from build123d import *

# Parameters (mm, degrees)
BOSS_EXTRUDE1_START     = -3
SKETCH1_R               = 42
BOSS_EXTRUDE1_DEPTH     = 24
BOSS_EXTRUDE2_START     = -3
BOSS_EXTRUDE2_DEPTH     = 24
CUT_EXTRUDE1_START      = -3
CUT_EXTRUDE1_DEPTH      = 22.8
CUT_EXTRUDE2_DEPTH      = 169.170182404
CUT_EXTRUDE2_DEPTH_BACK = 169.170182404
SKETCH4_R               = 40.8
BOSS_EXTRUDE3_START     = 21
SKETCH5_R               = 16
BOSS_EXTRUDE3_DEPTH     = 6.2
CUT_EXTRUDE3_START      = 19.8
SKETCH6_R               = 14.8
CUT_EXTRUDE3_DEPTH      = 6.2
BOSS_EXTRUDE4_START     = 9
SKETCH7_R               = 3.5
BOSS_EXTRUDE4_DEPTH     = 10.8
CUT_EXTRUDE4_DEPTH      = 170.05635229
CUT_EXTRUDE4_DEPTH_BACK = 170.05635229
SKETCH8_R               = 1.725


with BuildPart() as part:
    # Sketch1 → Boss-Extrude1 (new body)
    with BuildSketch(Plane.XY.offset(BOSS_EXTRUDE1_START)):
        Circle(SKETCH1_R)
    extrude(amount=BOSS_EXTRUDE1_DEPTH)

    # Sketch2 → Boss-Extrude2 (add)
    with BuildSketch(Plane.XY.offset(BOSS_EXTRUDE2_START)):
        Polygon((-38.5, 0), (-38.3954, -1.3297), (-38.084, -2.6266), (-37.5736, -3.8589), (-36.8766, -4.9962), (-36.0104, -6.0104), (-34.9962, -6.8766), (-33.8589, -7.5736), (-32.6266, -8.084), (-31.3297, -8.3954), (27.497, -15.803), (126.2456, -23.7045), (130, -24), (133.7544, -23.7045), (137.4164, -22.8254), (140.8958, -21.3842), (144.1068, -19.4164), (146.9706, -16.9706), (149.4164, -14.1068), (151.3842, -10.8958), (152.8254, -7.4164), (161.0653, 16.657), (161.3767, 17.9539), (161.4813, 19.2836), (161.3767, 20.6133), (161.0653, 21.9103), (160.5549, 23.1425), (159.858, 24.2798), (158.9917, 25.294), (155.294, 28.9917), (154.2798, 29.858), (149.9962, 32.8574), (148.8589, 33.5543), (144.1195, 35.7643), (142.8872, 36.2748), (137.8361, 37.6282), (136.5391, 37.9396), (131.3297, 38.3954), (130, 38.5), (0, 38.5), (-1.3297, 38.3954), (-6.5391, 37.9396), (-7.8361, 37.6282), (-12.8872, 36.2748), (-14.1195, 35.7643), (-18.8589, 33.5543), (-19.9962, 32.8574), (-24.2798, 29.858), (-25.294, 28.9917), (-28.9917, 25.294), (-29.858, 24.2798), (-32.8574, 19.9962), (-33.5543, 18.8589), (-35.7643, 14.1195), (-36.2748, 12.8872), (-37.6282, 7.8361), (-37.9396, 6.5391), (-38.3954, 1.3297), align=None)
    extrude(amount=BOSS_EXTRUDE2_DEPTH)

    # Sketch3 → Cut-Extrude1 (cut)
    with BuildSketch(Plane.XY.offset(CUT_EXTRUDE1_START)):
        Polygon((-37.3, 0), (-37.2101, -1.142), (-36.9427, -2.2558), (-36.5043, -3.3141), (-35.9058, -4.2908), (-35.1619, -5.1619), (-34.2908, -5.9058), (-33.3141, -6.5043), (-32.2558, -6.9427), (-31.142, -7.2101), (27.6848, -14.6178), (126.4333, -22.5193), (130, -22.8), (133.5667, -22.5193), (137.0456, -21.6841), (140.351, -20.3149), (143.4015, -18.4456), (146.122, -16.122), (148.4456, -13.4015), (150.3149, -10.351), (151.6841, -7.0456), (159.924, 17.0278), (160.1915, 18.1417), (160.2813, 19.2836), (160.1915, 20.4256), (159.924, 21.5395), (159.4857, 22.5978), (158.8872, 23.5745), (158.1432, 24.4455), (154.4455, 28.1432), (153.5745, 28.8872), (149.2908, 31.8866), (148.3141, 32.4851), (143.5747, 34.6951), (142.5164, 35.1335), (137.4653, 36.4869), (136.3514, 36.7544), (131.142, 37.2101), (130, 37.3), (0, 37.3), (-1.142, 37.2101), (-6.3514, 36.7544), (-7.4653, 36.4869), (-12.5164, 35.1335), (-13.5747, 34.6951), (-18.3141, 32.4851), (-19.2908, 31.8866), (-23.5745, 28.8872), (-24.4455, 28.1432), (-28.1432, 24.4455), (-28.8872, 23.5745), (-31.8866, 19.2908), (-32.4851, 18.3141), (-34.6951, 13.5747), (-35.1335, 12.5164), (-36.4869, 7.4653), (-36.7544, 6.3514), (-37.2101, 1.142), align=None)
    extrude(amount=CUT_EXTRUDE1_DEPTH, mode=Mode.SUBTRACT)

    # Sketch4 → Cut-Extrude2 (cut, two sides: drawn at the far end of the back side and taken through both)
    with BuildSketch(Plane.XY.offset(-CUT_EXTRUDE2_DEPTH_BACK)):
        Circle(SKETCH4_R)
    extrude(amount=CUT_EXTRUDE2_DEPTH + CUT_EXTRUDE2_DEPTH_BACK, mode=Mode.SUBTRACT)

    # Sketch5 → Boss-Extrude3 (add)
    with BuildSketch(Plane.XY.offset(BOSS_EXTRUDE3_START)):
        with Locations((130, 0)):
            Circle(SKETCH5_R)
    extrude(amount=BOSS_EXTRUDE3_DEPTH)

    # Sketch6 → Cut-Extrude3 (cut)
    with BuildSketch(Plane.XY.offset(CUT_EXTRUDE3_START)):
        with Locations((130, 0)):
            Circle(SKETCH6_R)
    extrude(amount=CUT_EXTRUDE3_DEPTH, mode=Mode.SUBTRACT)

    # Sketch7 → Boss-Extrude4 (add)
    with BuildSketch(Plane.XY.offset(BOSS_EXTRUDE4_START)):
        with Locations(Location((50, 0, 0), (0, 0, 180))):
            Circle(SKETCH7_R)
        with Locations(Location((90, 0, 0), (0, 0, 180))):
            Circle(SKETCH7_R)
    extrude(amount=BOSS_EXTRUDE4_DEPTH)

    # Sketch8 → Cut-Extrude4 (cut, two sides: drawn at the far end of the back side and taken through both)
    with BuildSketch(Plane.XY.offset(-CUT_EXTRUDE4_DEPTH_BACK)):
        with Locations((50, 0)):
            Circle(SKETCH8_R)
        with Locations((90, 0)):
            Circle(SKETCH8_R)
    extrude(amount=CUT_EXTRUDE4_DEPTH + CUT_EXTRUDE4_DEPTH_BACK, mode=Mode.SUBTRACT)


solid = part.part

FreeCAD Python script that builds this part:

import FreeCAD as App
import Part
import Sketcher
Q = App.Units.Quantity


def add_polygon(sketch, points):
    """Adds a closed chain of lines whose ends are joined by coincident constraints."""
    first, n = sketch.GeometryCount, len(points)
    for a, b in zip(points, points[1:] + points[:1]):
        sketch.addGeometry(Part.LineSegment(App.Vector(*a, 0), App.Vector(*b, 0)), False)
    for i in range(n):
        sketch.addConstraint(Sketcher.Constraint("Coincident", first + i, 2, first + (i + 1) % n, 1))

doc = App.newDocument("Part")
body = doc.addObject("PartDesign::Body", "Body")

sketch1 = body.newObject("Sketcher::SketchObject", "Sketch")
sketch1.AttachmentSupport = (doc.getObject("XY_Plane"), [""])
sketch1.MapMode = "FlatFace"
sketch1.AttachmentOffset = App.Placement(App.Vector(0, 0, -3), App.Rotation())
sketch1.addGeometry(Part.Circle(App.Vector(0, 0, 0), App.Vector(0, 0, 1), 42), False)
sketch1.addConstraint([
    Sketcher.Constraint("Coincident", 0, 3, -1, 1),
    Sketcher.Constraint("Diameter", 0, 84.0),
])
pad1 = body.newObject("PartDesign::Pad", "Pad")
pad1.Profile = sketch1
pad1.Length = 24

sketch2 = body.newObject("Sketcher::SketchObject", "Sketch001")
sketch2.AttachmentSupport = (doc.getObject("XY_Plane"), [""])
sketch2.MapMode = "FlatFace"
sketch2.AttachmentOffset = App.Placement(App.Vector(0, 0, -3), App.Rotation())
add_polygon(sketch2, [(-38.5, 0), (-38.3954, -1.3297), (-38.084, -2.6266), (-37.5736, -3.8589), (-36.8766, -4.9962), (-36.0104, -6.0104), (-34.9962, -6.8766), (-33.8589, -7.5736), (-32.6266, -8.084), (-31.3297, -8.3954), (27.497, -15.803), (126.2456, -23.7045), (130, -24), (133.7544, -23.7045), (137.4164, -22.8254), (140.8958, -21.3842), (144.1068, -19.4164), (146.9706, -16.9706), (149.4164, -14.1068), (151.3842, -10.8958), (152.8254, -7.4164), (161.0653, 16.657), (161.3767, 17.9539), (161.4813, 19.2836), (161.3767, 20.6133), (161.0653, 21.9103), (160.5549, 23.1425), (159.858, 24.2798), (158.9917, 25.294), (155.294, 28.9917), (154.2798, 29.858), (149.9962, 32.8574), (148.8589, 33.5543), (144.1195, 35.7643), (142.8872, 36.2748), (137.8361, 37.6282), (136.5391, 37.9396), (131.3297, 38.3954), (130, 38.5), (0, 38.5), (-1.3297, 38.3954), (-6.5391, 37.9396), (-7.8361, 37.6282), (-12.8872, 36.2748), (-14.1195, 35.7643), (-18.8589, 33.5543), (-19.9962, 32.8574), (-24.2798, 29.858), (-25.294, 28.9917), (-28.9917, 25.294), (-29.858, 24.2798), (-32.8574, 19.9962), (-33.5543, 18.8589), (-35.7643, 14.1195), (-36.2748, 12.8872), (-37.6282, 7.8361), (-37.9396, 6.5391), (-38.3954, 1.3297)])
sketch2.addConstraint([
    Sketcher.Constraint("Horizontal", 38),
    Sketcher.Constraint("Symmetric", 0, 2, 56, 2, -1),
    Sketcher.Constraint("PointOnObject", 38, 2, -2),
    Sketcher.Constraint("PointOnObject", 57, 2, -1),
    Sketcher.Constraint("Perpendicular", 8, 21),
    Sketcher.Constraint("Parallel", 0, 23),
    Sketcher.Constraint("Perpendicular", 22, 37),
    Sketcher.Constraint("Perpendicular", 23, 39),
    Sketcher.Constraint("Perpendicular", 24, 41),
    Sketcher.Constraint("Perpendicular", 26, 45),
    Sketcher.Constraint("Perpendicular", 27, 47),
    Sketcher.Constraint("Perpendicular", 28, 48),
    Sketcher.Constraint("Perpendicular", 29, 49),
    Sketcher.Constraint("Perpendicular", 30, 50),
    Sketcher.Constraint("Perpendicular", 31, 51),
    Sketcher.Constraint("Perpendicular", 32, 52),
    Sketcher.Constraint("Perpendicular", 33, 53),
    Sketcher.Constraint("Perpendicular", 34, 54),
    Sketcher.Constraint("Perpendicular", 35, 55),
    Sketcher.Constraint("Perpendicular", 36, 56),
    Sketcher.Constraint("Perpendicular", 37, 57),
    Sketcher.Constraint("Horizontal", 10, 2, 12, 2),
    Sketcher.Constraint("Horizontal", 36, 2, 39, 2),
    Sketcher.Constraint("Horizontal", 35, 2, 40, 2),
    Sketcher.Constraint("Horizontal", 34, 2, 41, 2),
    Sketcher.Constraint("Horizontal", 33, 2, 42, 2),
    Sketcher.Constraint("Horizontal", 32, 2, 43, 2),
    Sketcher.Constraint("Horizontal", 31, 2, 44, 2),
    Sketcher.Constraint("Horizontal", 30, 2, 45, 2),
    Sketcher.Constraint("Horizontal", 29, 2, 46, 2),
    Sketcher.Constraint("Horizontal", 28, 2, 47, 2),
    Sketcher.Constraint("Horizontal", 27, 2, 48, 2),
    Sketcher.Constraint("Horizontal", 26, 2, 49, 2),
    Sketcher.Constraint("Vertical", 21, 2, 23, 2),
    Sketcher.Constraint("Vertical", 20, 2, 24, 2),
    Sketcher.Constraint("Vertical", 11, 2, 37, 2),
    Sketcher.Constraint("Equal", 4, 5),
    Sketcher.Constraint("Equal", 3, 6),
    Sketcher.Constraint("Equal", 2, 7),
    Sketcher.Constraint("Equal", 1, 8),
    Sketcher.Constraint("Equal", 11, 12),
    Sketcher.Constraint("Equal", 14, 16),
    Sketcher.Constraint("Equal", 16, 17),
    Sketcher.Constraint("Equal", 15, 18),
    Sketcher.Constraint("Equal", 17, 19),
    Sketcher.Constraint("Equal", 8, 21),
    Sketcher.Constraint("Equal", 0, 22),
    Sketcher.Constraint("Equal", 27, 29),
    Sketcher.Constraint("Equal", 26, 31),
    Sketcher.Constraint("Equal", 24, 35),
    Sketcher.Constraint("Equal", 23, 37),
    Sketcher.Constraint("Equal", 36, 40),
    Sketcher.Constraint("Equal", 35, 41),
    Sketcher.Constraint("Equal", 34, 42),
    Sketcher.Constraint("Equal", 33, 43),
    Sketcher.Constraint("Equal", 32, 44),
    Sketcher.Constraint("Equal", 31, 45),
    Sketcher.Constraint("Equal", 30, 46),
    Sketcher.Constraint("Equal", 29, 47),
    Sketcher.Constraint("Equal", 28, 48),
    Sketcher.Constraint("Equal", 46, 50),
    Sketcher.Constraint("Equal", 45, 51),
    Sketcher.Constraint("Equal", 44, 52),
    Sketcher.Constraint("Equal", 43, 53),
    Sketcher.Constraint("Equal", 42, 54),
    Sketcher.Constraint("Equal", 41, 55),
    Sketcher.Constraint("Equal", 40, 56),
    Sketcher.Constraint("DistanceX", 38, 2, 38, 1, 130.0),
    Sketcher.Constraint("DistanceY", 11, 2, -1, 1, 24.0),
    Sketcher.Constraint("DistanceX", 13, 2, 17, 2, 12.0),
    Sketcher.Constraint("DistanceY", 15, 2, 19, 2, 12.0),
    Sketcher.Constraint("DistanceX", 8, 2, 39, 2, 30.0),
    Sketcher.Constraint("DistanceY", -1, 1, 37, 2, 38.5),
    Sketcher.Constraint("DistanceY", 19, 2, 22, 2, 26.7),
    Sketcher.Constraint("DistanceY", 5, 2, 1, 2, 4.25),
    Sketcher.Constraint("DistanceX", 3, 2, 7, 2, 4.25),
    Sketcher.Constraint("DistanceY", 13, 2, 8, 2, 14.43),
    Sketcher.Constraint("DistanceY", 31, 2, 32, 2, 2.21),
    Sketcher.Constraint("Distance", 15, 3.766),
    Sketcher.Constraint("DistanceX", 1, 2, -1, 1, 38.084),
    Sketcher.Constraint("DistanceY", 7, 2, -1, 1, 8.084),
    Sketcher.Constraint("DistanceX", -1, 1, 9, 2, 27.497),
    Sketcher.Constraint("DistanceY", 9, 2, -1, 1, 15.803),
    Sketcher.Constraint("DistanceY", -1, 1, 20, 2, 16.657),
    Sketcher.Constraint("DistanceX", -1, 1, 26, 2, 159.858),
    Sketcher.Constraint("DistanceY", -1, 1, 27, 2, 25.294),
    Sketcher.Constraint("DistanceX", 2, 2, 3, 2, 0.697),
    Sketcher.Constraint("DistanceX", 0, 2, 4, 2, 2.385),
    Sketcher.Constraint("DistanceY", 6, 2, 5, 2, 0.697),
    Sketcher.Constraint("DistanceY", 8, 2, 4, 2, 2.385),
    Sketcher.Constraint("DistanceX", 7, 2, 12, 2, 166.381),
    Sketcher.Constraint("DistanceX", 12, 2, 13, 2, 3.662),
    Sketcher.Constraint("DistanceX", 14, 2, 15, 2, 3.211),
    Sketcher.Constraint("DistanceY", 13, 2, 15, 2, 3.409),
    Sketcher.Constraint("DistanceY", 17, 2, 18, 2, 3.211),
    Sketcher.Constraint("DistanceX", 17, 2, 19, 2, 3.409),
    Sketcher.Constraint("DistanceY", 23, 2, 24, 2, 1.297),
    Sketcher.Constraint("DistanceX", 27, 2, 23, 2, 2.385),
    Sketcher.Constraint("DistanceX", 33, 2, 30, 2, 7.109),
    Sketcher.Constraint("DistanceY", 2, 2, 54, 2, 11.695),
    Sketcher.Constraint("DistanceX", 0, 2, -1, 1, 38.3954),
    Sketcher.Constraint("DistanceY", 0, 2, -1, 1, 1.3297),
    Sketcher.Constraint("DistanceY", 2, 2, -1, 1, 3.8589),
    Sketcher.Constraint("DistanceY", 3, 2, -1, 1, 4.9962),
    Sketcher.Constraint("DistanceY", 10, 2, -1, 1, 23.7045),
    Sketcher.Constraint("DistanceX", -1, 1, 14, 2, 140.8958),
    Sketcher.Constraint("DistanceX", -1, 1, 20, 2, 161.0653),
    Sketcher.Constraint("DistanceX", -1, 1, 25, 2, 160.5549),
    Sketcher.Constraint("DistanceY", -1, 1, 25, 2, 23.1425),
    Sketcher.Constraint("DistanceY", -1, 1, 26, 2, 24.2798),
    Sketcher.Constraint("DistanceX", -1, 1, 30, 2, 149.9962),
    Sketcher.Constraint("DistanceY", -1, 1, 30, 2, 32.8574),
    Sketcher.Constraint("DistanceX", -1, 1, 32, 2, 144.1195),
    Sketcher.Constraint("DistanceY", -1, 1, 33, 2, 36.2748),
    Sketcher.Constraint("DistanceY", -1, 1, 34, 2, 37.6282),
])
pad2 = body.newObject("PartDesign::Pad", "Pad001")
pad2.Profile = sketch2
pad2.Length = 24

sketch3 = body.newObject("Sketcher::SketchObject", "Sketch002")
sketch3.AttachmentSupport = (doc.getObject("XY_Plane"), [""])
sketch3.MapMode = "FlatFace"
sketch3.AttachmentOffset = App.Placement(App.Vector(0, 0, -3), App.Rotation())
add_polygon(sketch3, [(-37.3, 0), (-37.2101, -1.142), (-36.9427, -2.2558), (-36.5043, -3.3141), (-35.9058, -4.2908), (-35.1619, -5.1619), (-34.2908, -5.9058), (-33.3141, -6.5043), (-32.2558, -6.9427), (-31.142, -7.2101), (27.6848, -14.6178), (126.4333, -22.5193), (130, -22.8), (133.5667, -22.5193), (137.0456, -21.6841), (140.351, -20.3149), (143.4015, -18.4456), (146.122, -16.122), (148.4456, -13.4015), (150.3149, -10.351), (151.6841, -7.0456), (159.924, 17.0278), (160.1915, 18.1417), (160.2813, 19.2836), (160.1915, 20.4256), (159.924, 21.5395), (159.4857, 22.5978), (158.8872, 23.5745), (158.1432, 24.4455), (154.4455, 28.1432), (153.5745, 28.8872), (149.2908, 31.8866), (148.3141, 32.4851), (143.5747, 34.6951), (142.5164, 35.1335), (137.4653, 36.4869), (136.3514, 36.7544), (131.142, 37.2101), (130, 37.3), (0, 37.3), (-1.142, 37.2101), (-6.3514, 36.7544), (-7.4653, 36.4869), (-12.5164, 35.1335), (-13.5747, 34.6951), (-18.3141, 32.4851), (-19.2908, 31.8866), (-23.5745, 28.8872), (-24.4455, 28.1432), (-28.1432, 24.4455), (-28.8872, 23.5745), (-31.8866, 19.2908), (-32.4851, 18.3141), (-34.6951, 13.5747), (-35.1335, 12.5164), (-36.4869, 7.4653), (-36.7544, 6.3514), (-37.2101, 1.142)])
sketch3.addConstraint([
    Sketcher.Constraint("Horizontal", 38),
    Sketcher.Constraint("Symmetric", 0, 2, 56, 2, -1),
    Sketcher.Constraint("PointOnObject", 38, 2, -2),
    Sketcher.Constraint("PointOnObject", 57, 2, -1),
    Sketcher.Constraint("Parallel", 3, 26),
    Sketcher.Constraint("Parallel", 6, 31),
    Sketcher.Constraint("Parallel", 7, 33),
    Sketcher.Constraint("Perpendicular", 21, 35),
    Sketcher.Constraint("Perpendicular", 0, 39),
    Sketcher.Constraint("Perpendicular", 24, 41),
    Sketcher.Constraint("Perpendicular", 2, 43),
    Sketcher.Constraint("Perpendicular", 26, 45),
    Sketcher.Constraint("Perpendicular", 27, 47),
    Sketcher.Constraint("Perpendicular", 28, 48),
    Sketcher.Constraint("Perpendicular", 29, 49),
    Sketcher.Constraint("Perpendicular", 30, 50),
    Sketcher.Constraint("Perpendicular", 31, 51),
    Sketcher.Constraint("Perpendicular", 32, 52),
    Sketcher.Constraint("Perpendicular", 33, 53),
    Sketcher.Constraint("Perpendicular", 34, 54),
    Sketcher.Constraint("Perpendicular", 35, 55),
    Sketcher.Constraint("Perpendicular", 36, 56),
    Sketcher.Constraint("Perpendicular", 37, 57),
    Sketcher.Constraint("Horizontal", 10, 2, 12, 2),
    Sketcher.Constraint("Horizontal", 36, 2, 39, 2),
    Sketcher.Constraint("Horizontal", 35, 2, 40, 2),
    Sketcher.Constraint("Horizontal", 34, 2, 41, 2),
    Sketcher.Constraint("Horizontal", 33, 2, 42, 2),
    Sketcher.Constraint("Horizontal", 32, 2, 43, 2),
    Sketcher.Constraint("Horizontal", 31, 2, 44, 2),
    Sketcher.Constraint("Horizontal", 30, 2, 45, 2),
    Sketcher.Constraint("Horizontal", 29, 2, 46, 2),
    Sketcher.Constraint("Horizontal", 28, 2, 47, 2),
    Sketcher.Constraint("Horizontal", 27, 2, 48, 2),
    Sketcher.Constraint("Horizontal", 26, 2, 49, 2),
    Sketcher.Constraint("Vertical", 21, 2, 23, 2),
    Sketcher.Constraint("Vertical", 20, 2, 24, 2),
    Sketcher.Constraint("Vertical", 11, 2, 37, 2),
    Sketcher.Constraint("Equal", 4, 5),
    Sketcher.Constraint("Equal", 3, 6),
    Sketcher.Constraint("Equal", 2, 7),
    Sketcher.Constraint("Equal", 1, 8),
    Sketcher.Constraint("Equal", 11, 12),
    Sketcher.Constraint("Equal", 16, 17),
    Sketcher.Constraint("Equal", 15, 18),
    Sketcher.Constraint("Equal", 14, 19),
    Sketcher.Constraint("Equal", 21, 24),
    Sketcher.Constraint("Equal", 6, 26),
    Sketcher.Constraint("Equal", 27, 29),
    Sketcher.Constraint("Equal", 26, 31),
    Sketcher.Constraint("Equal", 7, 33),
    Sketcher.Constraint("Equal", 24, 35),
    Sketcher.Constraint("Equal", 0, 37),
    Sketcher.Constraint("Equal", 36, 40),
    Sketcher.Constraint("Equal", 34, 42),
    Sketcher.Constraint("Equal", 33, 43),
    Sketcher.Constraint("Equal", 32, 44),
    Sketcher.Constraint("Equal", 31, 45),
    Sketcher.Constraint("Equal", 30, 46),
    Sketcher.Constraint("Equal", 29, 47),
    Sketcher.Constraint("Equal", 28, 48),
    Sketcher.Constraint("Equal", 46, 50),
    Sketcher.Constraint("Equal", 45, 51),
    Sketcher.Constraint("Equal", 44, 52),
    Sketcher.Constraint("Equal", 43, 53),
    Sketcher.Constraint("Equal", 42, 54),
    Sketcher.Constraint("Equal", 41, 55),
    Sketcher.Constraint("Equal", 40, 56),
    Sketcher.Constraint("DistanceX", 38, 2, 38, 1, 130.0),
    Sketcher.Constraint("Angle", 1, Q("-76.499986 deg")),
    Sketcher.Constraint("Angle", 8, Q("-13.500014 deg")),
    Sketcher.Constraint("DistanceX", 8, 2, 39, 2, 30.0),
    Sketcher.Constraint("DistanceY", 11, 2, -1, 1, 22.8),
    Sketcher.Constraint("DistanceY", -1, 1, 37, 2, 37.3),
    Sketcher.Constraint("DistanceX", 13, 2, 17, 2, 11.4),
    Sketcher.Constraint("DistanceY", 15, 2, 19, 2, 11.4),
    Sketcher.Constraint("DistanceY", 5, 2, 1, 2, 3.65),
    Sketcher.Constraint("DistanceX", 3, 2, 7, 2, 3.65),
    Sketcher.Constraint("DistanceY", 20, 2, 25, 2, 5.57),
    Sketcher.Constraint("DistanceY", 31, 2, 32, 2, 2.21),
    Sketcher.Constraint("DistanceY", 0, 2, -1, 1, 1.142),
    Sketcher.Constraint("DistanceX", -1, 1, 14, 2, 140.351),
    Sketcher.Constraint("DistanceX", -1, 1, 16, 2, 146.122),
    Sketcher.Constraint("DistanceY", 16, 2, -1, 1, 16.122),
    Sketcher.Constraint("DistanceY", 18, 2, -1, 1, 10.351),
    Sketcher.Constraint("DistanceX", -1, 1, 20, 2, 159.924),
    Sketcher.Constraint("DistanceY", 3, 2, 1, 2, 2.035),
    Sketcher.Constraint("DistanceY", 9, 2, 5, 2, 8.712),
    Sketcher.Constraint("DistanceY", 10, 2, 6, 2, 16.015),
    Sketcher.Constraint("DistanceY", 13, 2, 8, 2, 14.474),
    Sketcher.Constraint("DistanceY", 22, 2, 23, 2, 1.142),
    Sketcher.Constraint("DistanceY", 24, 2, 26, 2, 2.035),
    Sketcher.Constraint("DistanceX", 27, 2, 26, 2, 0.744),
    Sketcher.Constraint("DistanceY", 26, 2, 27, 2, 0.871),
    Sketcher.Constraint("DistanceX", 28, 2, 23, 2, 5.746),
    Sketcher.Constraint("DistanceX", 35, 2, 33, 2, 6.165),
    Sketcher.Constraint("DistanceY", 32, 2, 36, 2, 2.515),
    Sketcher.Constraint("DistanceX", 0, 2, -1, 1, 37.2101),
    Sketcher.Constraint("DistanceX", 1, 2, -1, 1, 36.9427),
    Sketcher.Constraint("DistanceX", 2, 2, -1, 1, 36.5043),
    Sketcher.Constraint("DistanceY", 2, 2, -1, 1, 3.3141),
    Sketcher.Constraint("DistanceX", 4, 2, -1, 1, 35.1619),
    Sketcher.Constraint("DistanceX", -1, 1, 9, 2, 27.6848),
    Sketcher.Constraint("DistanceX", -1, 1, 10, 2, 126.4333),
    Sketcher.Constraint("DistanceX", -1, 1, 13, 2, 137.0456),
    Sketcher.Constraint("DistanceY", 14, 2, -1, 1, 20.3149),
    Sketcher.Constraint("DistanceX", -1, 1, 15, 2, 143.4015),
    Sketcher.Constraint("DistanceY", 15, 2, -1, 1, 18.4456),
    Sketcher.Constraint("DistanceY", -1, 1, 20, 2, 17.0278),
    Sketcher.Constraint("DistanceY", -1, 1, 21, 2, 18.1417),
    Sketcher.Constraint("DistanceX", -1, 1, 22, 2, 160.2813),
    Sketcher.Constraint("DistanceX", -1, 1, 25, 2, 159.4857),
    Sketcher.Constraint("DistanceX", -1, 1, 30, 2, 149.2908),
    Sketcher.Constraint("DistanceX", -1, 1, 32, 2, 143.5747),
    Sketcher.Constraint("DistanceY", -1, 1, 34, 2, 36.4869),
])
pocket1 = body.newObject("PartDesign::Pocket", "Pocket")
pocket1.Profile = sketch3
pocket1.Length = 22.8
pocket1.Reversed = True

sketch4 = body.newObject("Sketcher::SketchObject", "Sketch003")
sketch4.AttachmentSupport = (doc.getObject("XY_Plane"), [""])
sketch4.MapMode = "FlatFace"
sketch4.addGeometry(Part.Circle(App.Vector(0, 0, 0), App.Vector(0, 0, 1), 40.8), False)
sketch4.addConstraint([
    Sketcher.Constraint("Coincident", 0, 3, -1, 1),
    Sketcher.Constraint("Diameter", 0, 81.6),
])
pocket2 = body.newObject("PartDesign::Pocket", "Pocket001")
pocket2.Profile = sketch4
pocket2.Type = "ThroughAll"
pocket2.Midplane = True

sketch5 = body.newObject("Sketcher::SketchObject", "Sketch004")
sketch5.AttachmentSupport = (doc.getObject("XY_Plane"), [""])
sketch5.MapMode = "FlatFace"
sketch5.AttachmentOffset = App.Placement(App.Vector(0, 0, 21), App.Rotation())
sketch5.addGeometry(Part.Circle(App.Vector(130, 0, 0), App.Vector(0, 0, 1), 16), False)
sketch5.addConstraint([
    Sketcher.Constraint("PointOnObject", 0, 3, -1),
    Sketcher.Constraint("Diameter", 0, 32.0),
    Sketcher.Constraint("DistanceX", -1, 1, 0, 3, 130.0),
])
pad3 = body.newObject("PartDesign::Pad", "Pad002")
pad3.Profile = sketch5
pad3.Length = 6.2

sketch6 = body.newObject("Sketcher::SketchObject", "Sketch005")
sketch6.AttachmentSupport = (doc.getObject("XY_Plane"), [""])
sketch6.MapMode = "FlatFace"
sketch6.AttachmentOffset = App.Placement(App.Vector(0, 0, 19.8), App.Rotation())
sketch6.addGeometry(Part.Circle(App.Vector(130, 0, 0), App.Vector(0, 0, 1), 14.8), False)
sketch6.addConstraint([
    Sketcher.Constraint("PointOnObject", 0, 3, -1),
    Sketcher.Constraint("Diameter", 0, 29.6),
    Sketcher.Constraint("DistanceX", -1, 1, 0, 3, 130.0),
])
pocket3 = body.newObject("PartDesign::Pocket", "Pocket002")
pocket3.Profile = sketch6
pocket3.Length = 6.2
pocket3.Reversed = True

sketch7 = body.newObject("Sketcher::SketchObject", "Sketch006")
sketch7.AttachmentSupport = (doc.getObject("XY_Plane"), [""])
sketch7.MapMode = "FlatFace"
sketch7.AttachmentOffset = App.Placement(App.Vector(0, 0, 9), App.Rotation())
sketch7.addGeometry([
    Part.Circle(App.Vector(50, 0, 0), App.Vector(0, 0, 1), 3.5),
    Part.Circle(App.Vector(90, 0, 0), App.Vector(0, 0, 1), 3.5),
], False)
sketch7.addConstraint([
    Sketcher.Constraint("Equal", 0, 1),
    Sketcher.Constraint("PointOnObject", 0, 3, -1),
    Sketcher.Constraint("PointOnObject", 1, 3, -1),
    Sketcher.Constraint("Diameter", 0, 7.0),
    Sketcher.Constraint("DistanceX", -1, 1, 0, 3, 50.0),
    Sketcher.Constraint("DistanceX", -1, 1, 1, 3, 90.0),
])
pad4 = body.newObject("PartDesign::Pad", "Pad003")
pad4.Profile = sketch7
pad4.Length = 10.8

sketch8 = body.newObject("Sketcher::SketchObject", "Sketch007")
sketch8.AttachmentSupport = (doc.getObject("XY_Plane"), [""])
sketch8.MapMode = "FlatFace"
sketch8.addGeometry([
    Part.Circle(App.Vector(50, 0, 0), App.Vector(0, 0, 1), 1.725),
    Part.Circle(App.Vector(90, 0, 0), App.Vector(0, 0, 1), 1.725),
], False)
sketch8.addConstraint([
    Sketcher.Constraint("Equal", 0, 1),
    Sketcher.Constraint("PointOnObject", 0, 3, -1),
    Sketcher.Constraint("PointOnObject", 1, 3, -1),
    Sketcher.Constraint("Diameter", 0, 3.45),
    Sketcher.Constraint("DistanceX", -1, 1, 0, 3, 50.0),
    Sketcher.Constraint("DistanceX", -1, 1, 1, 3, 90.0),
])
pocket4 = body.newObject("PartDesign::Pocket", "Pocket003")
pocket4.Profile = sketch8
pocket4.Type = "ThroughAll"
pocket4.Midplane = True

doc.recompute()
